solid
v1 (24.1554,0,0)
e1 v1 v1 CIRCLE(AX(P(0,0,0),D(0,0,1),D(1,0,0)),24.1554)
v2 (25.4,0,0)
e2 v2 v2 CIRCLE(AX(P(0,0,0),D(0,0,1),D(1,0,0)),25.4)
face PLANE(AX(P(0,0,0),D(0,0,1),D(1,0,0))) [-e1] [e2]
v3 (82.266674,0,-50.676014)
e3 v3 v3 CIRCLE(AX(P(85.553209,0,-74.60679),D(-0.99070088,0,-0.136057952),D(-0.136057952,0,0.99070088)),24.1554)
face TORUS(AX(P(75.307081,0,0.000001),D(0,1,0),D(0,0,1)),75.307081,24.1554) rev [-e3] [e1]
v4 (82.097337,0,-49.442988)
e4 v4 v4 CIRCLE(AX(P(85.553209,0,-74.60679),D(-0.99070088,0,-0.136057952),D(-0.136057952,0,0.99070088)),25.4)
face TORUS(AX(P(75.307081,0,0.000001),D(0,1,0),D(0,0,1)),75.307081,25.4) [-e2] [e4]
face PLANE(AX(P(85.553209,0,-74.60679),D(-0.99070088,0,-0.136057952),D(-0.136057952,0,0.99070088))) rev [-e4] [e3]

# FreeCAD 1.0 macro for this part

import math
import FreeCAD as App
import Part
import Sketcher

V = App.Vector
Q = App.Units.Quantity

doc = App.newDocument("Part")
params = doc.addObject("Spreadsheet::Sheet", "Params")
for row, (alias, value) in enumerate([
    ("sketch1_diameter", "2 in"),
    ("sketch1_diameter2", "1.902 in"),
], start=1):
    params.set(f"A{row}", alias)
    params.set(f"B{row}", "=" + value)
    params.setAlias(f"B{row}", alias)

body = doc.addObject("PartDesign::Body", "Body")

# Sketch on XY plane
sketch1 = body.newObject("Sketcher::SketchObject", "Sketch")
sketch1.AttachmentSupport = (doc.getObject("XY_Plane"), [""])
sketch1.MapMode = "FlatFace"
sketch1.addGeometry(Part.Circle(V(0, 0, 0), V(0, 0, 1), 25), False)
sketch1.addGeometry(Part.Circle(V(0, 0, 0), V(0, 0, 1), 24), False)
sketch1.addConstraint(Sketcher.Constraint("Coincident", 0, 3, -1, 1))
sketch1.addConstraint(Sketcher.Constraint("Coincident", 1, 3, -1, 1))
sketch1.addConstraint(Sketcher.Constraint("Diameter", 0, Q("2 in")))
sketch1.addConstraint(Sketcher.Constraint("Diameter", 1, Q("1.902 in")))
sketch1.setExpression("Constraints[2]", "Params.sketch1_diameter")
sketch1.setExpression("Constraints[3]", "Params.sketch1_diameter2")

# Sketch on XZ plane
sketch2 = body.newObject("Sketcher::SketchObject", "Sketch001")
sketch2.AttachmentSupport = (doc.getObject("XZ_Plane"), [""])
sketch2.MapMode = "FlatFace"
sketch2.addGeometry(Part.ArcOfCircle(Part.Circle(V(75, 0, 0), V(0, 0, 1), 75), math.radians(-180), math.radians(-82)), False)
sketch2.addConstraint(Sketcher.Constraint("Coincident", 0, 1, -1, 1))
sketch2.addConstraint(Sketcher.Constraint("PointOnObject", 0, 3, -1))
sketch2.addConstraint(Sketcher.Constraint("Radius", 0, 75.307081))
sketch2.addConstraint(Sketcher.Constraint("DistanceX", -1, 1, 0, 2, 85.553209))
doc.recompute()

additivepipe = body.newObject("PartDesign::AdditivePipe", "AdditivePipe")
additivepipe.Profile = sketch1
additivepipe.Spine = (sketch2, ["Edge1"])

doc.recompute()
